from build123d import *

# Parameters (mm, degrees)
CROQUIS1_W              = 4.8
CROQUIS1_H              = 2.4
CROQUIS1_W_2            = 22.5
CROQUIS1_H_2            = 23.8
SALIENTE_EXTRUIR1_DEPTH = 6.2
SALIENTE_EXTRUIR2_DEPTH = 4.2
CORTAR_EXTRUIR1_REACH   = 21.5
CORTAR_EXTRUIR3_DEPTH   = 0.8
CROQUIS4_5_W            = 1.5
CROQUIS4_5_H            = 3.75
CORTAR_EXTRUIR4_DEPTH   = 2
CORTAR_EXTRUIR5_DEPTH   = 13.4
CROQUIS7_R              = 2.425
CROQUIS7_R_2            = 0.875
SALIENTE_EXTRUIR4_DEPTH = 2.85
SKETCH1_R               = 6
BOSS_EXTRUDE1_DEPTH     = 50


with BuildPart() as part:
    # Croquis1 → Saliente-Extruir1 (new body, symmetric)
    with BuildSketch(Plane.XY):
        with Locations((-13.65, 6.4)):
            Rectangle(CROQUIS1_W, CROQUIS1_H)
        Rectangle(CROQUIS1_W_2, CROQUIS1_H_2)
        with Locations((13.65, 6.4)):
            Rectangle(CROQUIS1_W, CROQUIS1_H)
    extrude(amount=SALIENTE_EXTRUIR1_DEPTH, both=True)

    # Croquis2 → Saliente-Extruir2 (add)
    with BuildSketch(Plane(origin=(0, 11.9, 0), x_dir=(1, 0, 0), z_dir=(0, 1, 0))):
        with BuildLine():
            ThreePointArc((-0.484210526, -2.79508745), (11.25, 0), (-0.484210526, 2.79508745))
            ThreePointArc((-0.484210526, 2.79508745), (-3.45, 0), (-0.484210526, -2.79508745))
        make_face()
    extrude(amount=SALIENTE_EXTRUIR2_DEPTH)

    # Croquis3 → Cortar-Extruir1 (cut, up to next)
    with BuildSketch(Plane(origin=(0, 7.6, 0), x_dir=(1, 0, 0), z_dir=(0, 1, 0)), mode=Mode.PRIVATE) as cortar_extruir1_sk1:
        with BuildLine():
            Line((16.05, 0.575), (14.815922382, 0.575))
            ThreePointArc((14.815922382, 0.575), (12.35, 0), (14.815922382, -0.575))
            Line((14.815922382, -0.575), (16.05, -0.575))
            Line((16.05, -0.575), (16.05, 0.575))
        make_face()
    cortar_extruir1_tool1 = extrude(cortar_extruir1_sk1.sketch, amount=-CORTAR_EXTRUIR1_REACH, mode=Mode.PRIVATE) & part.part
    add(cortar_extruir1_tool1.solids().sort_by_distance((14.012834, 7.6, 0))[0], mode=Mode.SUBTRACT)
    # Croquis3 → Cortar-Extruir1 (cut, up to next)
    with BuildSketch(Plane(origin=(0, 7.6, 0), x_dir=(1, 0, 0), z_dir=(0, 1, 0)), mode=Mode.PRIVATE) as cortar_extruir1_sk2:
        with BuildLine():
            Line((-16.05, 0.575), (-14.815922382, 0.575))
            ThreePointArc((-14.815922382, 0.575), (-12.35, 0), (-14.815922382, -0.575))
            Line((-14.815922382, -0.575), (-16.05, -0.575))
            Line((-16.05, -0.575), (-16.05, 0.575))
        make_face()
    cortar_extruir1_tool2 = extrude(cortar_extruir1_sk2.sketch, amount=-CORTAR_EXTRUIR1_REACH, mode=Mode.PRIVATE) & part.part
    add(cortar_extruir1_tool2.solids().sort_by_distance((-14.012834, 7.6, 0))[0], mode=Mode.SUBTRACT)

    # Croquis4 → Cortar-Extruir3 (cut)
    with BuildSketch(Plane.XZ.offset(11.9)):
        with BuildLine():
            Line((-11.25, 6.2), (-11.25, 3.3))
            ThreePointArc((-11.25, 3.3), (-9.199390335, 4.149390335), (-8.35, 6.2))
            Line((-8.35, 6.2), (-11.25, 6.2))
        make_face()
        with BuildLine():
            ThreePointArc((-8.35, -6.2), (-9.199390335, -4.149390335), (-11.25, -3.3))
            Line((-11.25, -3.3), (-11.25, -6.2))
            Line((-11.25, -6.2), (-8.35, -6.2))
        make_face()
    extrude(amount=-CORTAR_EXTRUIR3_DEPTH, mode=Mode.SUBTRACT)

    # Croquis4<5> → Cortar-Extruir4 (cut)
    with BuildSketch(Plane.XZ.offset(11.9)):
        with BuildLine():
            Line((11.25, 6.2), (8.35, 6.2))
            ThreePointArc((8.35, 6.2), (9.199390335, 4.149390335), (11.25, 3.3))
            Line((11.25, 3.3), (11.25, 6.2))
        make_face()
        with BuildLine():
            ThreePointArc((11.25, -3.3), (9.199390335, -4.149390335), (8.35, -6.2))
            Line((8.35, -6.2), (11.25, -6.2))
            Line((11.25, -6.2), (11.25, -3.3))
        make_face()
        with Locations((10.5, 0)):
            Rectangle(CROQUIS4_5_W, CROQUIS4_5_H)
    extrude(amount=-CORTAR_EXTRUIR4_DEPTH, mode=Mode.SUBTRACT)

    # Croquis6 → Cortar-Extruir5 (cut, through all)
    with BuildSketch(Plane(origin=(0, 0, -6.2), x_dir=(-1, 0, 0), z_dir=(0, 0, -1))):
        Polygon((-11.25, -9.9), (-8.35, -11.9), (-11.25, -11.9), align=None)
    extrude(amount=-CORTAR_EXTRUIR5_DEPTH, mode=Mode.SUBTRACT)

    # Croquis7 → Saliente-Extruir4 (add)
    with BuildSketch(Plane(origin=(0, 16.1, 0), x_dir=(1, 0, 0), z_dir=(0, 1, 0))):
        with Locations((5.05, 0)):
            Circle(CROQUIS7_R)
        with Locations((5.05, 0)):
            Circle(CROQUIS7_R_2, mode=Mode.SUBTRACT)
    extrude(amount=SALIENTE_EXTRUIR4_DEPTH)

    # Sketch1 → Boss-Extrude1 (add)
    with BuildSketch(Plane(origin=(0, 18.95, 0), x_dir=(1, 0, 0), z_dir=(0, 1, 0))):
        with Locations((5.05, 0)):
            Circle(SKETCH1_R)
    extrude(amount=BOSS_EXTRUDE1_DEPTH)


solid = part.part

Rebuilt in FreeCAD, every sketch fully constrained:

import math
import FreeCAD as App
import Part
import Sketcher

V = App.Vector

doc = App.newDocument("Part")
body = doc.addObject("PartDesign::Body", "Body")

# Sketch on XY plane
sketch1 = doc.addObject("Sketcher::SketchObject", "Sketch")
body.addObject(sketch1)
sketch1.AttachmentSupport = (doc.XY_Plane, [""])
sketch1.MapMode = "FlatFace"
sketch1.addGeometry(Part.LineSegment(V(-16.1, 7.6, 0), V(-16.1, 5.2, 0)), False)
sketch1.addGeometry(Part.LineSegment(V(-16.1, 5.2, 0), V(-11.2, 5.2, 0)), False)
sketch1.addGeometry(Part.LineSegment(V(-11.2, 5.2, 0), V(-11.2, -11.9, 0)), False)
sketch1.addGeometry(Part.LineSegment(V(-11.2, -11.9, 0), V(11.2, -11.9, 0)), False)
sketch1.addGeometry(Part.LineSegment(V(11.2, -11.9, 0), V(11.2, 5.2, 0)), False)
sketch1.addGeometry(Part.LineSegment(V(11.2, 5.2, 0), V(16.1, 5.2, 0)), False)
sketch1.addGeometry(Part.LineSegment(V(16.1, 5.2, 0), V(16.1, 7.6, 0)), False)
sketch1.addGeometry(Part.LineSegment(V(16.1, 7.6, 0), V(11.2, 7.6, 0)), False)
sketch1.addGeometry(Part.LineSegment(V(11.2, 7.6, 0), V(11.2, 11.9, 0)), False)
sketch1.addGeometry(Part.LineSegment(V(11.2, 11.9, 0), V(-11.2, 11.9, 0)), False)
sketch1.addGeometry(Part.LineSegment(V(-11.2, 11.9, 0), V(-11.2, 7.6, 0)), False)
sketch1.addGeometry(Part.LineSegment(V(-11.2, 7.6, 0), V(-16.1, 7.6, 0)), False)
sketch1.addConstraint(Sketcher.Constraint("Coincident", 0, 2, 1, 1))
sketch1.addConstraint(Sketcher.Constraint("Coincident", 1, 2, 2, 1))
sketch1.addConstraint(Sketcher.Constraint("Coincident", 2, 2, 3, 1))
sketch1.addConstraint(Sketcher.Constraint("Coincident", 3, 2, 4, 1))
sketch1.addConstraint(Sketcher.Constraint("Coincident", 4, 2, 5, 1))
sketch1.addConstraint(Sketcher.Constraint("Coincident", 5, 2, 6, 1))
sketch1.addConstraint(Sketcher.Constraint("Coincident", 6, 2, 7, 1))
sketch1.addConstraint(Sketcher.Constraint("Coincident", 7, 2, 8, 1))
sketch1.addConstraint(Sketcher.Constraint("Coincident", 8, 2, 9, 1))
sketch1.addConstraint(Sketcher.Constraint("Coincident", 9, 2, 10, 1))
sketch1.addConstraint(Sketcher.Constraint("Coincident", 10, 2, 11, 1))
sketch1.addConstraint(Sketcher.Constraint("Coincident", 11, 2, 0, 1))
sketch1.addConstraint(Sketcher.Constraint("Vertical", 0))
sketch1.addConstraint(Sketcher.Constraint("Horizontal", 1))
sketch1.addConstraint(Sketcher.Constraint("Vertical", 2))
sketch1.addConstraint(Sketcher.Constraint("Horizontal", 3))
sketch1.addConstraint(Sketcher.Constraint("Vertical", 4))
sketch1.addConstraint(Sketcher.Constraint("Horizontal", 5))
sketch1.addConstraint(Sketcher.Constraint("Vertical", 6))
sketch1.addConstraint(Sketcher.Constraint("Horizontal", 7))
sketch1.addConstraint(Sketcher.Constraint("Vertical", 8))
sketch1.addConstraint(Sketcher.Constraint("Horizontal", 9))
sketch1.addConstraint(Sketcher.Constraint("Vertical", 10))
sketch1.addConstraint(Sketcher.Constraint("Horizontal", 11))
sketch1.addConstraint(Sketcher.Constraint("Symmetric", 2, 2, 8, 2, -1, 1))
sketch1.addConstraint(Sketcher.Constraint("Symmetric", 1, 2, 4, 2, -2))
sketch1.addConstraint(Sketcher.Constraint("Symmetric", 7, 2, 10, 2, -2))
sketch1.addConstraint(Sketcher.Constraint("Equal", 1, 5))
sketch1.addConstraint(Sketcher.Constraint("DistanceX", 1, 1, 1, 2, 4.8))
sketch1.addConstraint(Sketcher.Constraint("DistanceX", 3, 1, 3, 2, 22.5))
sketch1.addConstraint(Sketcher.Constraint("DistanceY", 0, 2, 0, 1, 2.4))
sketch1.addConstraint(Sketcher.Constraint("DistanceY", 2, 2, 2, 1, 17.1))
sketch1.addConstraint(Sketcher.Constraint("DistanceY", 8, 1, 8, 2, 4.3))
pad1 = doc.addObject("PartDesign::Pad", "Pad")
body.addObject(pad1)
pad1.Profile = sketch1
pad1.Length = 12.4
pad1.Midplane = True

# Sketch on XZ plane
sketch2 = doc.addObject("Sketcher::SketchObject", "Sketch001")
body.addObject(sketch2)
sketch2.AttachmentSupport = (doc.XZ_Plane, [""])
sketch2.MapMode = "FlatFace"
sketch2.AttachmentOffset = App.Placement(V(0, 0, -11.9), App.Rotation())
sketch2.addGeometry(Part.ArcOfCircle(Part.Circle(V(5, 0, 0), V(0, 0, 1), 6.2), math.radians(-153), math.radians(153)), False)
sketch2.addGeometry(Part.ArcOfCircle(Part.Circle(V(-0.7, 0, 0), V(0, 0, 1), 2.8), math.radians(87), math.radians(273)), False)
sketch2.addConstraint(Sketcher.Constraint("Coincident", 0, 1, 1, 2))
sketch2.addConstraint(Sketcher.Constraint("Coincident", 1, 1, 0, 2))
sketch2.addConstraint(Sketcher.Constraint("Symmetric", 0, 1, 1, 1, -1))
sketch2.addConstraint(Sketcher.Constraint("Radius", 0, 6.2))
sketch2.addConstraint(Sketcher.Constraint("Radius", 1, 2.8))
sketch2.addConstraint(Sketcher.Constraint("DistanceX", 1, 3, 0, 3, 5.7))
sketch2.addConstraint(Sketcher.Constraint("DistanceX", -1, 1, 0, 3, 5.05))
pad2 = doc.addObject("PartDesign::Pad", "Pad001")
body.addObject(pad2)
pad2.Profile = sketch2
pad2.Length = 4.2
pad2.Reversed = True

# Sketch on XZ plane
sketch3 = doc.addObject("Sketcher::SketchObject", "Sketch002")
body.addObject(sketch3)
sketch3.AttachmentSupport = (doc.XZ_Plane, [""])
sketch3.MapMode = "FlatFace"
sketch3.AttachmentOffset = App.Placement(V(0, 0, -7.6), App.Rotation())
sketch3.addGeometry(Part.LineSegment(V(16.1, -0.6, 0), V(14.8, -0.6, 0)), False)
sketch3.addGeometry(Part.ArcOfCircle(Part.Circle(V(13.7, 0, 0), V(0, 0, 1), 1.3), math.radians(26), math.radians(334)), False)
sketch3.addGeometry(Part.LineSegment(V(14.8, 0.6, 0), V(16.1, 0.6, 0)), False)
sketch3.addGeometry(Part.LineSegment(V(16.1, 0.6, 0), V(16.1, -0.6, 0)), False)
sketch3.addConstraint(Sketcher.Constraint("Coincident", 0, 2, 1, 2))
sketch3.addConstraint(Sketcher.Constraint("Coincident", 1, 1, 2, 1))
sketch3.addConstraint(Sketcher.Constraint("Coincident", 2, 2, 3, 1))
sketch3.addConstraint(Sketcher.Constraint("Coincident", 3, 2, 0, 1))
sketch3.addConstraint(Sketcher.Constraint("Horizontal", 0))
sketch3.addConstraint(Sketcher.Constraint("Horizontal", 2))
sketch3.addConstraint(Sketcher.Constraint("Vertical", 3))
sketch3.addConstraint(Sketcher.Constraint("Symmetric", 0, 2, 1, 1, -1))
sketch3.addConstraint(Sketcher.Constraint("Radius", 1, 1.3))
sketch3.addConstraint(Sketcher.Constraint("DistanceY", 3, 2, 3, 1, 1.15))
sketch3.addConstraint(Sketcher.Constraint("DistanceX", 1, 3, 2, 2, 2.4))
sketch3.addConstraint(Sketcher.Constraint("DistanceX", -1, 1, 1, 3, 13.65))
pocket1 = doc.addObject("PartDesign::Pocket", "Pocket")
body.addObject(pocket1)
pocket1.Profile = sketch3
pocket1.Type = "UpToFirst"
pocket1.Reversed = True

# Sketch on XZ plane
sketch4 = doc.addObject("Sketcher::SketchObject", "Sketch003")
body.addObject(sketch4)
sketch4.AttachmentSupport = (doc.XZ_Plane, [""])
sketch4.MapMode = "FlatFace"
sketch4.AttachmentOffset = App.Placement(V(0, 0, -7.6), App.Rotation())
sketch4.addGeometry(Part.LineSegment(V(-14.8, -0.6, 0), V(-16.1, -0.6, 0)), False)
sketch4.addGeometry(Part.LineSegment(V(-16.1, -0.6, 0), V(-16.1, 0.6, 0)), False)
sketch4.addGeometry(Part.LineSegment(V(-16.1, 0.6, 0), V(-14.8, 0.6, 0)), False)
sketch4.addGeometry(Part.ArcOfCircle(Part.Circle(V(-13.7, 0, 0), V(0, 0, 1), 1.3), math.radians(-154), math.radians(154)), False)
sketch4.addConstraint(Sketcher.Constraint("Coincident", 0, 2, 1, 1))
sketch4.addConstraint(Sketcher.Constraint("Coincident", 1, 2, 2, 1))
sketch4.addConstraint(Sketcher.Constraint("Coincident", 2, 2, 3, 2))
sketch4.addConstraint(Sketcher.Constraint("Coincident", 3, 1, 0, 1))
sketch4.addConstraint(Sketcher.Constraint("Horizontal", 0))
sketch4.addConstraint(Sketcher.Constraint("Vertical", 1))
sketch4.addConstraint(Sketcher.Constraint("Horizontal", 2))
sketch4.addConstraint(Sketcher.Constraint("Symmetric", 2, 2, 3, 1, -1))
sketch4.addConstraint(Sketcher.Constraint("Radius", 3, 1.3))
sketch4.addConstraint(Sketcher.Constraint("DistanceY", 1, 1, 1, 2, 1.15))
sketch4.addConstraint(Sketcher.Constraint("DistanceX", 0, 2, 3, 3, 2.4))
sketch4.addConstraint(Sketcher.Constraint("DistanceX", 3, 3, -1, 1, 13.65))
pocket2 = doc.addObject("PartDesign::Pocket", "Pocket001")
body.addObject(pocket2)
pocket2.Profile = sketch4
pocket2.Type = "UpToFirst"
pocket2.Reversed = True

# Sketch on XZ plane
sketch5 = doc.addObject("Sketcher::SketchObject", "Sketch004")
body.addObject(sketch5)
sketch5.AttachmentSupport = (doc.XZ_Plane, [""])
sketch5.MapMode = "FlatFace"
sketch5.AttachmentOffset = App.Placement(V(0, 0, 11.9), App.Rotation())
sketch5.addGeometry(Part.LineSegment(V(-11.2, 6.2, 0), V(-11.2, 3.3, 0)), False)
sketch5.addGeometry(Part.ArcOfCircle(Part.Circle(V(-11.3, 6.2, 0), V(0, 0, 1), 2.9), math.radians(-90), math.radians(0)), False)
sketch5.addGeometry(Part.LineSegment(V(-8.3, 6.2, 0), V(-11.2, 6.2, 0)), False)
sketch5.addGeometry(Part.ArcOfCircle(Part.Circle(V(-11.3, -6.2, 0), V(0, 0, 1), 2.9), math.radians(0), math.radians(90)), False)
sketch5.addGeometry(Part.LineSegment(V(-11.2, -3.3, 0), V(-11.2, -6.2, 0)), False)
sketch5.addGeometry(Part.LineSegment(V(-11.2, -6.2, 0), V(-8.3, -6.2, 0)), False)
sketch5.addConstraint(Sketcher.Constraint("Coincident", 0, 2, 1, 1))
sketch5.addConstraint(Sketcher.Constraint("Coincident", 1, 2, 2, 1))
sketch5.addConstraint(Sketcher.Constraint("Coincident", 2, 2, 0, 1))
sketch5.addConstraint(Sketcher.Constraint("Coincident", 3, 2, 4, 1))
sketch5.addConstraint(Sketcher.Constraint("Coincident", 4, 2, 5, 1))
sketch5.addConstraint(Sketcher.Constraint("Coincident", 5, 2, 3, 1))
sketch5.addConstraint(Sketcher.Constraint("Vertical", 0))
sketch5.addConstraint(Sketcher.Constraint("Horizontal", 2))
sketch5.addConstraint(Sketcher.Constraint("Vertical", 4))
sketch5.addConstraint(Sketcher.Constraint("Horizontal", 5))
sketch5.addConstraint(Sketcher.Constraint("Coincident", 2, 2, 1, 3))
sketch5.addConstraint(Sketcher.Constraint("Coincident", 4, 2, 3, 3))
sketch5.addConstraint(Sketcher.Constraint("Equal", 1, 3))
sketch5.addConstraint(Sketcher.Constraint("Symmetric", 1, 3, 3, 3, -1))
sketch5.addConstraint(Sketcher.Constraint("Radius", 1, 2.9))
sketch5.addConstraint(Sketcher.Constraint("DistanceY", -1, 1, 1, 3, 6.2))
sketch5.addConstraint(Sketcher.Constraint("DistanceX", 1, 3, -1, 1, 11.25))
pocket3 = doc.addObject("PartDesign::Pocket", "Pocket002")
body.addObject(pocket3)
pocket3.Profile = sketch5
pocket3.Length = 0.8

# Sketch on XZ plane
sketch6 = doc.addObject("Sketcher::SketchObject", "Sketch005")
body.addObject(sketch6)
sketch6.AttachmentSupport = (doc.XZ_Plane, [""])
sketch6.MapMode = "FlatFace"
sketch6.AttachmentOffset = App.Placement(V(0, 0, 11.9), App.Rotation())
sketch6.addGeometry(Part.LineSegment(V(11.2, 6.2, 0), V(8.3, 6.2, 0)), False)
sketch6.addGeometry(Part.ArcOfCircle(Part.Circle(V(11.3, 6.2, 0), V(0, 0, 1), 2.9), math.radians(-180), math.radians(-90)), False)
sketch6.addGeometry(Part.LineSegment(V(11.2, 3.3, 0), V(11.2, 6.2, 0)), False)
sketch6.addGeometry(Part.ArcOfCircle(Part.Circle(V(11.3, -6.2, 0), V(0, 0, 1), 2.9), math.radians(90), math.radians(180)), False)
sketch6.addGeometry(Part.LineSegment(V(8.3, -6.2, 0), V(11.2, -6.2, 0)), False)
sketch6.addGeometry(Part.LineSegment(V(11.2, -6.2, 0), V(11.2, -3.3, 0)), False)
sketch6.addGeometry(Part.LineSegment(V(9.8, 1.9, 0), V(9.8, -1.9, 0)), False)
sketch6.addGeometry(Part.LineSegment(V(9.8, -1.9, 0), V(11.2, -1.9, 0)), False)
sketch6.addGeometry(Part.LineSegment(V(11.2, -1.9, 0), V(11.2, 1.9, 0)), False)
sketch6.addGeometry(Part.LineSegment(V(11.2, 1.9, 0), V(9.8, 1.9, 0)), False)
sketch6.addConstraint(Sketcher.Constraint("Coincident", 0, 2, 1, 1))
sketch6.addConstraint(Sketcher.Constraint("Coincident", 1, 2, 2, 1))
sketch6.addConstraint(Sketcher.Constraint("Coincident", 2, 2, 0, 1))
sketch6.addConstraint(Sketcher.Constraint("Coincident", 3, 2, 4, 1))
sketch6.addConstraint(Sketcher.Constraint("Coincident", 4, 2, 5, 1))
sketch6.addConstraint(Sketcher.Constraint("Coincident", 5, 2, 3, 1))
sketch6.addConstraint(Sketcher.Constraint("Coincident", 6, 2, 7, 1))
sketch6.addConstraint(Sketcher.Constraint("Coincident", 7, 2, 8, 1))
sketch6.addConstraint(Sketcher.Constraint("Coincident", 8, 2, 9, 1))
sketch6.addConstraint(Sketcher.Constraint("Coincident", 9, 2, 6, 1))
sketch6.addConstraint(Sketcher.Constraint("Horizontal", 0))
sketch6.addConstraint(Sketcher.Constraint("Vertical", 2))
sketch6.addConstraint(Sketcher.Constraint("Horizontal", 4))
sketch6.addConstraint(Sketcher.Constraint("Vertical", 5))
sketch6.addConstraint(Sketcher.Constraint("Vertical", 6))
sketch6.addConstraint(Sketcher.Constraint("Horizontal", 7))
sketch6.addConstraint(Sketcher.Constraint("Vertical", 8))
sketch6.addConstraint(Sketcher.Constraint("Horizontal", 9))
sketch6.addConstraint(Sketcher.Constraint("Coincident", 2, 2, 1, 3))
sketch6.addConstraint(Sketcher.Constraint("Coincident", 4, 2, 3, 3))
sketch6.addConstraint(Sketcher.Constraint("Equal", 1, 3))
sketch6.addConstraint(Sketcher.Constraint("Symmetric", 1, 3, 3, 3, -1))
sketch6.addConstraint(Sketcher.Constraint("Vertical", 5, 2, 7, 2))
sketch6.addConstraint(Sketcher.Constraint("Radius", 1, 2.9))
sketch6.addConstraint(Sketcher.Constraint("DistanceX", 7, 1, 7, 2, 1.5))
sketch6.addConstraint(Sketcher.Constraint("DistanceY", 6, 2, 6, 1, 3.75))
sketch6.addConstraint(Sketcher.Constraint("DistanceY", -1, 1, 1, 3, 6.2))
sketch6.addConstraint(Sketcher.Constraint("DistanceX", -1, 1, 1, 3, 11.25))
sketch6.addConstraint(Sketcher.Constraint("DistanceY", 6, 2, -1, 1, 1.875))
pocket4 = doc.addObject("PartDesign::Pocket", "Pocket003")
body.addObject(pocket4)
pocket4.Profile = sketch6
pocket4.Length = 2

# Sketch on XY plane
sketch7 = doc.addObject("Sketcher::SketchObject", "Sketch006")
body.addObject(sketch7)
sketch7.AttachmentSupport = (doc.XY_Plane, [""])
sketch7.MapMode = "FlatFace"
sketch7.AttachmentOffset = App.Placement(V(0, 0, -6.2), App.Rotation())
sketch7.addGeometry(Part.LineSegment(V(8.3, -11.9, 0), V(11.2, -9.9, 0)), False)
sketch7.addGeometry(Part.LineSegment(V(11.2, -9.9, 0), V(11.2, -11.9, 0)), False)
sketch7.addGeometry(Part.LineSegment(V(11.2, -11.9, 0), V(8.3, -11.9, 0)), False)
sketch7.addConstraint(Sketcher.Constraint("Coincident", 0, 2, 1, 1))
sketch7.addConstraint(Sketcher.Constraint("Coincident", 1, 2, 2, 1))
sketch7.addConstraint(Sketcher.Constraint("Coincident", 2, 2, 0, 1))
sketch7.addConstraint(Sketcher.Constraint("Vertical", 1))
sketch7.addConstraint(Sketcher.Constraint("Horizontal", 2))
sketch7.addConstraint(Sketcher.Constraint("DistanceY", 1, 2, 1, 1, 2.0))
sketch7.addConstraint(Sketcher.Constraint("DistanceX", 2, 2, 2, 1, 2.9))
sketch7.addConstraint(Sketcher.Constraint("DistanceY", 0, 2, -1, 1, 9.9))
sketch7.addConstraint(Sketcher.Constraint("DistanceX", -1, 1, 0, 2, 11.25))
pocket5 = doc.addObject("PartDesign::Pocket", "Pocket004")
body.addObject(pocket5)
pocket5.Profile = sketch7
pocket5.Type = "ThroughAll"
pocket5.Reversed = True

# Sketch on XZ plane
sketch8 = doc.addObject("Sketcher::SketchObject", "Sketch007")
body.addObject(sketch8)
sketch8.AttachmentSupport = (doc.XZ_Plane, [""])
sketch8.MapMode = "FlatFace"
sketch8.AttachmentOffset = App.Placement(V(0, 0, -16.1), App.Rotation())
sketch8.addGeometry(Part.Circle(V(5, 0, 0), V(0, 0, 1), 2.4), False)
sketch8.addGeometry(Part.Circle(V(5, 0, 0), V(0, 0, 1), 0.9), False)
sketch8.addConstraint(Sketcher.Constraint("Coincident", 1, 3, 0, 3))
sketch8.addConstraint(Sketcher.Constraint("PointOnObject", 0, 3, -1))
sketch8.addConstraint(Sketcher.Constraint("Diameter", 0, 4.85))
sketch8.addConstraint(Sketcher.Constraint("Diameter", 1, 1.75))
sketch8.addConstraint(Sketcher.Constraint("DistanceX", -1, 1, 0, 3, 5.05))
pad3 = doc.addObject("PartDesign::Pad", "Pad002")
body.addObject(pad3)
pad3.Profile = sketch8
pad3.Length = 2.85
pad3.Reversed = True

# Sketch on XZ plane
sketch9 = doc.addObject("Sketcher::SketchObject", "Sketch008")
body.addObject(sketch9)
sketch9.AttachmentSupport = (doc.XZ_Plane, [""])
sketch9.MapMode = "FlatFace"
sketch9.AttachmentOffset = App.Placement(V(0, 0, -18.95), App.Rotation())
sketch9.addGeometry(Part.Circle(V(5, 0, 0), V(0, 0, 1), 6), False)
sketch9.addConstraint(Sketcher.Constraint("PointOnObject", 0, 3, -1))
sketch9.addConstraint(Sketcher.Constraint("Diameter", 0, 12.0))
sketch9.addConstraint(Sketcher.Constraint("DistanceX", -1, 1, 0, 3, 5.05))
pad4 = doc.addObject("PartDesign::Pad", "Pad003")
body.addObject(pad4)
pad4.Profile = sketch9
pad4.Length = 50
pad4.Reversed = True

doc.recompute()
